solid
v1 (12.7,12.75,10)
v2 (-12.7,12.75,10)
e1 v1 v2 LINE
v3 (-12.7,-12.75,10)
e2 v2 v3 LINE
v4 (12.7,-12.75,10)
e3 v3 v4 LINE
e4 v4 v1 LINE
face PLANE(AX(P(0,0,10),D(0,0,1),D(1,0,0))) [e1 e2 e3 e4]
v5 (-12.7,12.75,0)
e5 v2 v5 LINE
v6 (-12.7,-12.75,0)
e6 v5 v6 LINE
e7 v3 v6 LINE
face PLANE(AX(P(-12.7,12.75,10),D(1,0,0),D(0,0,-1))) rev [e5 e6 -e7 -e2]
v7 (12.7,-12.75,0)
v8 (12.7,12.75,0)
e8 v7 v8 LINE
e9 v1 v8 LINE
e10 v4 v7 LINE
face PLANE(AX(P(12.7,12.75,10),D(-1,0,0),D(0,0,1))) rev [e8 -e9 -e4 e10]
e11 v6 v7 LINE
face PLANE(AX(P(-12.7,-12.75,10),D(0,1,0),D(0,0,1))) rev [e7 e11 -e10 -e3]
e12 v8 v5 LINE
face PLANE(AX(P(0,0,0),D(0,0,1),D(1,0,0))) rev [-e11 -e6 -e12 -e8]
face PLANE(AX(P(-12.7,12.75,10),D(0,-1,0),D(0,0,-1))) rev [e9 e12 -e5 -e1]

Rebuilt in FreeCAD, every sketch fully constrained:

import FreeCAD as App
import Part
import Sketcher
from FreeCAD import Vector

doc = App.newDocument("Part")
body = doc.addObject("PartDesign::Body", "Body")

# Sketch on XY plane
sketch1 = body.newObject("Sketcher::SketchObject", "Sketch")
sketch1.AttachmentSupport = (doc.getObject("XY_Plane"), [""])
sketch1.MapMode = "FlatFace"
sketch1.addGeometry([
    Part.LineSegment(Vector(-12.7, 12.75, 0), Vector(-12.7, -12.75, 0)),
    Part.LineSegment(Vector(-12.7, -12.75, 0), Vector(12.7, -12.75, 0)),
    Part.LineSegment(Vector(12.7, -12.75, 0), Vector(12.7, 12.75, 0)),
    Part.LineSegment(Vector(12.7, 12.75, 0), Vector(-12.7, 12.75, 0)),
], False)
sketch1.addConstraint([
    Sketcher.Constraint("Coincident", 0, 2, 1, 1),
    Sketcher.Constraint("Coincident", 1, 2, 2, 1),
    Sketcher.Constraint("Coincident", 2, 2, 3, 1),
    Sketcher.Constraint("Coincident", 3, 2, 0, 1),
    Sketcher.Constraint("Vertical", 0),
    Sketcher.Constraint("Horizontal", 1),
    Sketcher.Constraint("Vertical", 2),
    Sketcher.Constraint("Horizontal", 3),
    Sketcher.Constraint("Symmetric", 0, 2, 2, 2, -1, 1),
    Sketcher.Constraint("DistanceX", 1, 1, 1, 2, 25.4),
    Sketcher.Constraint("DistanceY", 0, 2, 0, 1, 25.5),
])
pad1 = body.newObject("PartDesign::Pad", "Pad")
pad1.Profile = sketch1
pad1.Length = 10

doc.recompute()
